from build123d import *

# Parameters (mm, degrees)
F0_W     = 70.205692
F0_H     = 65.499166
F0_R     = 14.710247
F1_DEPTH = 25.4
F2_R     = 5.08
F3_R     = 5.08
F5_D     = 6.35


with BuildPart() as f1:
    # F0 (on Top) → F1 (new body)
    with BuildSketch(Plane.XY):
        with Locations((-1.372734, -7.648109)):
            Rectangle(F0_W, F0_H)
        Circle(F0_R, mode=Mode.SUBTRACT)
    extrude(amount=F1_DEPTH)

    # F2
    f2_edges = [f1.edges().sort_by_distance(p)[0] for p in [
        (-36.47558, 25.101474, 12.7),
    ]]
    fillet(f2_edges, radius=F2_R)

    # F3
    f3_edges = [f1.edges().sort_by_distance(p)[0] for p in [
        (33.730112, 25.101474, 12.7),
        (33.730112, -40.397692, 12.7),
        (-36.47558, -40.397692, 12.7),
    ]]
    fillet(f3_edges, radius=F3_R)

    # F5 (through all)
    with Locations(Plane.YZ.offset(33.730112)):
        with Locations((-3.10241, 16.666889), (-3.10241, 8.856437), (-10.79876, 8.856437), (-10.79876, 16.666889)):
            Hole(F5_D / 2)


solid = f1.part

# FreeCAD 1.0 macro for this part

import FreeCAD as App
import Part
import Sketcher

V = App.Vector
Q = App.Units.Quantity


def edges_at(feature, points):
    """Names of the edges that pass closest to the given points."""
    edges = feature.Shape.Edges
    near = lambda p: min(range(len(edges)), key=lambda i: edges[i].distToShape(Part.Vertex(*p))[0])
    return sorted({f"Edge{near(p) + 1}" for p in points})


def add_polygon(sketch, points):
    """Adds a closed chain of lines whose ends are joined by coincident constraints."""
    first, n = sketch.GeometryCount, len(points)
    for a, b in zip(points, points[1:] + points[:1]):
        sketch.addGeometry(Part.LineSegment(App.Vector(*a, 0), App.Vector(*b, 0)), False)
    for i in range(n):
        sketch.addConstraint(Sketcher.Constraint("Coincident", first + i, 2, first + (i + 1) % n, 1))

doc = App.newDocument("Part")
body = doc.addObject("PartDesign::Body", "Body")

sketch1 = body.newObject("Sketcher::SketchObject", "Sketch")
sketch1.AttachmentSupport = (doc.getObject("XY_Plane"), [""])
sketch1.MapMode = "FlatFace"
add_polygon(sketch1, [(-36, 25), (-36, -40), (34, -40), (34, 25)])
sketch1.addGeometry(Part.Circle(V(0, 0, 0), V(0, 0, 1), 15), False)
sketch1.addConstraint(Sketcher.Constraint("Vertical", 0))
sketch1.addConstraint(Sketcher.Constraint("Horizontal", 1))
sketch1.addConstraint(Sketcher.Constraint("Vertical", 2))
sketch1.addConstraint(Sketcher.Constraint("Horizontal", 3))
sketch1.addConstraint(Sketcher.Constraint("Coincident", 4, 3, -1, 1))
sketch1.addConstraint(Sketcher.Constraint("Diameter", 4, Q("29.420494 mm")))
sketch1.addConstraint(Sketcher.Constraint("DistanceX", 1, 1, 1, 2, Q("70.205692 mm")))
sketch1.addConstraint(Sketcher.Constraint("DistanceY", 0, 2, 0, 1, Q("65.499166 mm")))
sketch1.addConstraint(Sketcher.Constraint("DistanceX", 0, 2, -1, 1, Q("36.47558 mm")))
sketch1.addConstraint(Sketcher.Constraint("DistanceY", 0, 2, -1, 1, Q("40.397692 mm")))
pad1 = body.newObject("PartDesign::Pad", "Pad")
pad1.Profile = sketch1
pad1.Length = Q("1 in")
doc.recompute()

fillet = body.newObject("PartDesign::Fillet", "Fillet")
fillet.Base = (pad1, edges_at(pad1, [(-36.476, 25.101, 12.7)]))
fillet.Radius = Q("0.2 in")
doc.recompute()

fillet2 = body.newObject("PartDesign::Fillet", "Fillet001")
fillet2.Base = (fillet, edges_at(fillet, [(33.73, 25.101, 12.7), (33.73, -40.398, 12.7), (-36.476, -40.398, 12.7)]))
fillet2.Radius = Q("0.2 in")

sketch2 = body.newObject("Sketcher::SketchObject", "Sketch001")
sketch2.AttachmentSupport = (doc.getObject("YZ_Plane"), [""])
sketch2.MapMode = "FlatFace"
sketch2.AttachmentOffset = App.Placement(V(0, 0, 33.730112), App.Rotation())
sketch2.addGeometry(Part.Circle(V(-3.1, 16.7, 0), V(0, 0, 1), 3.2), False)
sketch2.addGeometry(Part.Circle(V(-3.1, 8.9, 0), V(0, 0, 1), 3.2), False)
sketch2.addGeometry(Part.Circle(V(-10.8, 8.9, 0), V(0, 0, 1), 3.2), False)
sketch2.addGeometry(Part.Circle(V(-10.8, 16.7, 0), V(0, 0, 1), 3.2), False)
sketch2.addConstraint(Sketcher.Constraint("Equal", 0, 1))
sketch2.addConstraint(Sketcher.Constraint("Equal", 1, 2))
sketch2.addConstraint(Sketcher.Constraint("Equal", 2, 3))
sketch2.addConstraint(Sketcher.Constraint("Horizontal", 1, 3, 2, 3))
sketch2.addConstraint(Sketcher.Constraint("Horizontal", 0, 3, 3, 3))
sketch2.addConstraint(Sketcher.Constraint("Vertical", 0, 3, 1, 3))
sketch2.addConstraint(Sketcher.Constraint("Vertical", 2, 3, 3, 3))
sketch2.addConstraint(Sketcher.Constraint("Diameter", 0, Q("0.25 in")))
sketch2.addConstraint(Sketcher.Constraint("DistanceX", 0, 3, -1, 1, Q("3.10241 mm")))
sketch2.addConstraint(Sketcher.Constraint("DistanceY", -1, 1, 0, 3, Q("16.666889 mm")))
sketch2.addConstraint(Sketcher.Constraint("DistanceX", 2, 3, -1, 1, Q("10.79876 mm")))
sketch2.addConstraint(Sketcher.Constraint("DistanceY", -1, 1, 1, 3, Q("8.856437 mm")))
doc.recompute()
hole = body.newObject("PartDesign::Hole", "Hole")
hole.Profile = sketch2
hole.ThreadType = "None"
hole.Diameter = Q("0.25 in")
hole.DepthType = "ThroughAll"

doc.recompute()
